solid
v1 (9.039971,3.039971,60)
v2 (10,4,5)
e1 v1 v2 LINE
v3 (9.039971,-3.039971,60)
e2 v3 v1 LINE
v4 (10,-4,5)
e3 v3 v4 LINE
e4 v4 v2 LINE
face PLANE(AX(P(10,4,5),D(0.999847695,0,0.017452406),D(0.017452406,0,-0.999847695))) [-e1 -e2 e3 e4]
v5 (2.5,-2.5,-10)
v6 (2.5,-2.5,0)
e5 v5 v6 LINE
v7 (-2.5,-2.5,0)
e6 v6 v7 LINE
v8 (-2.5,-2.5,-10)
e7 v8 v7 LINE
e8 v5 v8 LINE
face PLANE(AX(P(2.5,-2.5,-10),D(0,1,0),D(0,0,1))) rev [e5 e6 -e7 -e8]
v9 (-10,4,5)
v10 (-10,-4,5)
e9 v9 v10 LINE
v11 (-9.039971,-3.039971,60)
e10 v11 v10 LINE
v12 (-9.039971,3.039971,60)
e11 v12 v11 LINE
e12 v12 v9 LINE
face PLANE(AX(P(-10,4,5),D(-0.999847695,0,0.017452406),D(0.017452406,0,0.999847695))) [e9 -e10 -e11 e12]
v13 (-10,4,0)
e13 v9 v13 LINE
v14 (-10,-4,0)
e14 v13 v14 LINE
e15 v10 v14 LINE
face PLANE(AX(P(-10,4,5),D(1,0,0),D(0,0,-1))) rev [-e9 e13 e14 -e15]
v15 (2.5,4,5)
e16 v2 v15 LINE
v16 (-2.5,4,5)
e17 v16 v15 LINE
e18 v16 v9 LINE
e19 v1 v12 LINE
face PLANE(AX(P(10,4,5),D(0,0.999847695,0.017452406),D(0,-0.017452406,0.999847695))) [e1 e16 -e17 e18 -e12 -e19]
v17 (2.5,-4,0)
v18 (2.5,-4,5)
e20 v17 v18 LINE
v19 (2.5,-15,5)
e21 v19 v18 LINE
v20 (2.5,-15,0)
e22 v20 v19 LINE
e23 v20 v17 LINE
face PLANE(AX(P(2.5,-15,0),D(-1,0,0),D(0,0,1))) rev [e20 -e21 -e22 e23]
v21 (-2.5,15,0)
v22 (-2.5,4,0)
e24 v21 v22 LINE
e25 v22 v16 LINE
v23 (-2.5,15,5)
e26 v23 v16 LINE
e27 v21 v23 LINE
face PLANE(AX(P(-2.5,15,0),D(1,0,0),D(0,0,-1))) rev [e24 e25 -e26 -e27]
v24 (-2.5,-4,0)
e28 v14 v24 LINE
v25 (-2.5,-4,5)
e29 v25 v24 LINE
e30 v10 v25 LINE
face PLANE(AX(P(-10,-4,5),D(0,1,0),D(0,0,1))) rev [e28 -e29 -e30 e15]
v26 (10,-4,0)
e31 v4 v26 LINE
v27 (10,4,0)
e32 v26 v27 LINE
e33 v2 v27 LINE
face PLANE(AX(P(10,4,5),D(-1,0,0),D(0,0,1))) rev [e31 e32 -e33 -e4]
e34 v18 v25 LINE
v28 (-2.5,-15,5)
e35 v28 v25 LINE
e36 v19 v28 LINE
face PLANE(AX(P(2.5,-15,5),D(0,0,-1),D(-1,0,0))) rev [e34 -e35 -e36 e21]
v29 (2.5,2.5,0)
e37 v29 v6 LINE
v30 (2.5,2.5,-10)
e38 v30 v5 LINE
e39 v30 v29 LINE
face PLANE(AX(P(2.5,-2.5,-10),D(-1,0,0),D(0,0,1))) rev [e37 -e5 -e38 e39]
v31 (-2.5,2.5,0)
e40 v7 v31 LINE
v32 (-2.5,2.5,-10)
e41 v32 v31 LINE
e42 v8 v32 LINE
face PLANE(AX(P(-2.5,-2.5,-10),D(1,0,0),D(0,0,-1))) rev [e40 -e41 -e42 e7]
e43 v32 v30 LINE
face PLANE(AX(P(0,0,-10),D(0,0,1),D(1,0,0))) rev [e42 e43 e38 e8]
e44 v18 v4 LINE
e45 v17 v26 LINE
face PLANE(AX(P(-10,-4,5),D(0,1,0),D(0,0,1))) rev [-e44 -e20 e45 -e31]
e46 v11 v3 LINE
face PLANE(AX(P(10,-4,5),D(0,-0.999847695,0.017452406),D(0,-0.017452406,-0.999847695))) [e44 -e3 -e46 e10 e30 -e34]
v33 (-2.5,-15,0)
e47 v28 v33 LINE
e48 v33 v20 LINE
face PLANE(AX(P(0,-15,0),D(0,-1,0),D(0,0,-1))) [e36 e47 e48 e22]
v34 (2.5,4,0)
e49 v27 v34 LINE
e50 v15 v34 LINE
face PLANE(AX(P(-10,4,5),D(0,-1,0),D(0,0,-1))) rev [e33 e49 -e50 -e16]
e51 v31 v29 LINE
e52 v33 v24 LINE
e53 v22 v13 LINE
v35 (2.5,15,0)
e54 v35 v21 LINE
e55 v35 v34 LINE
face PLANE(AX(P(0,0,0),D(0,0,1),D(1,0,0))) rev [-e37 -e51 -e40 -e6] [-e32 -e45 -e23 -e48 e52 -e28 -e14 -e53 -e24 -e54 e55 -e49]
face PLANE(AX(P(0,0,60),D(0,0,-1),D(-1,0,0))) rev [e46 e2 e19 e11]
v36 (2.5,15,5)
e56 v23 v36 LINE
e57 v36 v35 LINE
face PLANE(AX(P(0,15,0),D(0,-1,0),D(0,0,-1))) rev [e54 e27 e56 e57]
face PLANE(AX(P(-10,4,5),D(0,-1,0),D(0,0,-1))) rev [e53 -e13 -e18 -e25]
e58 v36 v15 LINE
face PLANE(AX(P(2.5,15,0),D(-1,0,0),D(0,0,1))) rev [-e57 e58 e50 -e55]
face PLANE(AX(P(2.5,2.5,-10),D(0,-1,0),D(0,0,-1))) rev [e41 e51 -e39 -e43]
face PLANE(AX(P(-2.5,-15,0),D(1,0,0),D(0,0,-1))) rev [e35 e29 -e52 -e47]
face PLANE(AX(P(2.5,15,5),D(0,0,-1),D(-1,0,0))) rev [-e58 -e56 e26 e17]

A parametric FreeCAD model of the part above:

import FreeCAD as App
import Part
import Sketcher

V = App.Vector


def add_polygon(sketch, points):
    """Adds a closed chain of lines whose ends are joined by coincident constraints."""
    first, n = sketch.GeometryCount, len(points)
    for a, b in zip(points, points[1:] + points[:1]):
        sketch.addGeometry(Part.LineSegment(App.Vector(*a, 0), App.Vector(*b, 0)), False)
    for i in range(n):
        sketch.addConstraint(Sketcher.Constraint("Coincident", first + i, 2, first + (i + 1) % n, 1))

doc = App.newDocument("Part")
body = doc.addObject("PartDesign::Body", "Body")

# Sketch on XY plane
sketch1 = body.newObject("Sketcher::SketchObject", "Sketch")
sketch1.AttachmentSupport = (doc.getObject("XY_Plane"), [""])
sketch1.MapMode = "FlatFace"
add_polygon(sketch1, [(-10, 4), (-10, -4), (10, -4), (10, 4)])  # lines 0-3
sketch1.addConstraint(Sketcher.Constraint("Vertical", 0))
sketch1.addConstraint(Sketcher.Constraint("Horizontal", 1))
sketch1.addConstraint(Sketcher.Constraint("Vertical", 2))
sketch1.addConstraint(Sketcher.Constraint("Horizontal", 3))
sketch1.addConstraint(Sketcher.Constraint("Symmetric", 0, 2, 2, 2, -1, 1))
sketch1.addConstraint(Sketcher.Constraint("DistanceX", 1, 1, 1, 2, 20.0))
sketch1.addConstraint(Sketcher.Constraint("DistanceY", 0, 2, 0, 1, 8.0))
pad1 = body.newObject("PartDesign::Pad", "Pad")
pad1.Profile = sketch1
pad1.Length = 5

# Sketch on XY plane
sketch2 = body.newObject("Sketcher::SketchObject", "Sketch001")
sketch2.AttachmentSupport = (doc.getObject("XY_Plane"), [""])
sketch2.MapMode = "FlatFace"
add_polygon(sketch2, [(2, 2), (2, -2), (-2, -2), (-2, 2)])  # lines 0-3
sketch2.addConstraint(Sketcher.Constraint("Vertical", 0))
sketch2.addConstraint(Sketcher.Constraint("Horizontal", 1))
sketch2.addConstraint(Sketcher.Constraint("Vertical", 2))
sketch2.addConstraint(Sketcher.Constraint("Horizontal", 3))
sketch2.addConstraint(Sketcher.Constraint("Symmetric", 0, 2, 2, 2, -1, 1))
sketch2.addConstraint(Sketcher.Constraint("Equal", 3, 0))
sketch2.addConstraint(Sketcher.Constraint("DistanceX", 1, 2, 1, 1, 5.0))
pad2 = body.newObject("PartDesign::Pad", "Pad001")
pad2.Profile = sketch2
pad2.Length = 10
pad2.Reversed = True

# Sketch on XY plane
sketch3 = body.newObject("Sketcher::SketchObject", "Sketch002")
sketch3.AttachmentSupport = (doc.getObject("XY_Plane"), [""])
sketch3.MapMode = "FlatFace"
sketch3.AttachmentOffset = App.Placement(V(0, 0, 5), App.Rotation())
add_polygon(sketch3, [(-10, 4), (-10, -4), (10, -4), (10, 4)])  # lines 0-3
sketch3.addConstraint(Sketcher.Constraint("Vertical", 0))
sketch3.addConstraint(Sketcher.Constraint("Horizontal", 1))
sketch3.addConstraint(Sketcher.Constraint("Vertical", 2))
sketch3.addConstraint(Sketcher.Constraint("Horizontal", 3))
sketch3.addConstraint(Sketcher.Constraint("Symmetric", 0, 2, 2, 2, -1, 1))
sketch3.addConstraint(Sketcher.Constraint("DistanceX", 1, 1, 1, 2, 20.0))
sketch3.addConstraint(Sketcher.Constraint("DistanceY", 0, 2, 0, 1, 8.0))
pad3 = body.newObject("PartDesign::Pad", "Pad002")
pad3.Profile = sketch3
pad3.Length = 55
pad3.TaperAngle = -1

# Sketch on XZ plane
sketch4 = body.newObject("Sketcher::SketchObject", "Sketch003")
sketch4.AttachmentSupport = (doc.getObject("XZ_Plane"), [""])
sketch4.MapMode = "FlatFace"
sketch4.AttachmentOffset = App.Placement(V(0, 0, -4), App.Rotation())
add_polygon(sketch4, [(-2, 0), (-2, 5), (2, 5), (2, 0)])  # lines 0-3
sketch4.addConstraint(Sketcher.Constraint("Vertical", 0))
sketch4.addConstraint(Sketcher.Constraint("Horizontal", 1))
sketch4.addConstraint(Sketcher.Constraint("Vertical", 2))
sketch4.addConstraint(Sketcher.Constraint("Horizontal", 3))
sketch4.addConstraint(Sketcher.Constraint("Symmetric", 2, 2, 3, 2, -1, 1))
sketch4.addConstraint(Sketcher.Constraint("Equal", 3, 0))
sketch4.addConstraint(Sketcher.Constraint("DistanceX", 1, 1, 1, 2, 5.0))
pad4 = body.newObject("PartDesign::Pad", "Pad003")
pad4.Profile = sketch4
pad4.Length = 11
pad4.Reversed = True

# Sketch on XZ plane
sketch5 = body.newObject("Sketcher::SketchObject", "Sketch004")
sketch5.AttachmentSupport = (doc.getObject("XZ_Plane"), [""])
sketch5.MapMode = "FlatFace"
sketch5.AttachmentOffset = App.Placement(V(0, 0, 4), App.Rotation())
add_polygon(sketch5, [(2, 0), (2, 5), (-2, 5), (-2, 0)])  # lines 0-3
sketch5.addConstraint(Sketcher.Constraint("Vertical", 0))
sketch5.addConstraint(Sketcher.Constraint("Horizontal", 1))
sketch5.addConstraint(Sketcher.Constraint("Vertical", 2))
sketch5.addConstraint(Sketcher.Constraint("Horizontal", 3))
sketch5.addConstraint(Sketcher.Constraint("Symmetric", 2, 2, 3, 2, -1, 1))
sketch5.addConstraint(Sketcher.Constraint("Equal", 3, 0))
sketch5.addConstraint(Sketcher.Constraint("DistanceX", 1, 2, 1, 1, 5.0))
pad5 = body.newObject("PartDesign::Pad", "Pad004")
pad5.Profile = sketch5
pad5.Length = 11

doc.recompute()
